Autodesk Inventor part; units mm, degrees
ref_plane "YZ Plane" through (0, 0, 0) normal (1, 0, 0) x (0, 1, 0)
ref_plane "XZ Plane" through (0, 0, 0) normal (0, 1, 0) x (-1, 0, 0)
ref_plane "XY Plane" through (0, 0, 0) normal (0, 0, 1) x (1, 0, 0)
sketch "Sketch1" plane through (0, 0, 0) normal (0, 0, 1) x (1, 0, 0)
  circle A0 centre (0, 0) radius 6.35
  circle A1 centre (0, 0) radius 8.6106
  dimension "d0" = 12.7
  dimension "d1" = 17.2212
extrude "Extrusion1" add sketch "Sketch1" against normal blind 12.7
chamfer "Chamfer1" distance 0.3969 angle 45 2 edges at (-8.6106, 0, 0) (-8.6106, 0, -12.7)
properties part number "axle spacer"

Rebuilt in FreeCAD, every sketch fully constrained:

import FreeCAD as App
import Part
import Sketcher
Q = App.Units.Quantity


def edges_at(feature, points):
    """Names of the edges that pass closest to the given points."""
    edges = feature.Shape.Edges
    near = lambda p: min(range(len(edges)), key=lambda i: edges[i].distToShape(Part.Vertex(*p))[0])
    return sorted({f"Edge{near(p) + 1}" for p in points})

doc = App.newDocument("Part")
body = doc.addObject("PartDesign::Body", "Body")

# Sketch on XY plane
sketch1 = doc.addObject("Sketcher::SketchObject", "Sketch")
body.addObject(sketch1)
sketch1.AttachmentSupport = (doc.XY_Plane, [""])
sketch1.MapMode = "FlatFace"
sketch1.addGeometry([
    Part.Circle(App.Vector(0, 0, 0), App.Vector(0, 0, 1), 8.6106),
    Part.Circle(App.Vector(0, 0, 0), App.Vector(0, 0, 1), 6.35),
], False)
sketch1.addConstraint([
    Sketcher.Constraint("Coincident", 0, 3, -1, 1),
    Sketcher.Constraint("Coincident", 1, 3, -1, 1),
    Sketcher.Constraint("Diameter", 1, Q("0.5 in")),
    Sketcher.Constraint("Diameter", 0, Q("0.678 in")),
])
pad1 = doc.addObject("PartDesign::Pad", "Pad")
body.addObject(pad1)
pad1.Profile = sketch1
pad1.Length = Q("0.5 in")
pad1.Reversed = True
doc.recompute()

chamfer = doc.addObject("PartDesign::Chamfer", "Chamfer")
body.addObject(chamfer)
chamfer.Base = (pad1, edges_at(pad1, [(-8.611, 0, 0), (-8.611, 0, -12.7)]))
chamfer.Size = Q("0.015626 in")

doc.recompute()
